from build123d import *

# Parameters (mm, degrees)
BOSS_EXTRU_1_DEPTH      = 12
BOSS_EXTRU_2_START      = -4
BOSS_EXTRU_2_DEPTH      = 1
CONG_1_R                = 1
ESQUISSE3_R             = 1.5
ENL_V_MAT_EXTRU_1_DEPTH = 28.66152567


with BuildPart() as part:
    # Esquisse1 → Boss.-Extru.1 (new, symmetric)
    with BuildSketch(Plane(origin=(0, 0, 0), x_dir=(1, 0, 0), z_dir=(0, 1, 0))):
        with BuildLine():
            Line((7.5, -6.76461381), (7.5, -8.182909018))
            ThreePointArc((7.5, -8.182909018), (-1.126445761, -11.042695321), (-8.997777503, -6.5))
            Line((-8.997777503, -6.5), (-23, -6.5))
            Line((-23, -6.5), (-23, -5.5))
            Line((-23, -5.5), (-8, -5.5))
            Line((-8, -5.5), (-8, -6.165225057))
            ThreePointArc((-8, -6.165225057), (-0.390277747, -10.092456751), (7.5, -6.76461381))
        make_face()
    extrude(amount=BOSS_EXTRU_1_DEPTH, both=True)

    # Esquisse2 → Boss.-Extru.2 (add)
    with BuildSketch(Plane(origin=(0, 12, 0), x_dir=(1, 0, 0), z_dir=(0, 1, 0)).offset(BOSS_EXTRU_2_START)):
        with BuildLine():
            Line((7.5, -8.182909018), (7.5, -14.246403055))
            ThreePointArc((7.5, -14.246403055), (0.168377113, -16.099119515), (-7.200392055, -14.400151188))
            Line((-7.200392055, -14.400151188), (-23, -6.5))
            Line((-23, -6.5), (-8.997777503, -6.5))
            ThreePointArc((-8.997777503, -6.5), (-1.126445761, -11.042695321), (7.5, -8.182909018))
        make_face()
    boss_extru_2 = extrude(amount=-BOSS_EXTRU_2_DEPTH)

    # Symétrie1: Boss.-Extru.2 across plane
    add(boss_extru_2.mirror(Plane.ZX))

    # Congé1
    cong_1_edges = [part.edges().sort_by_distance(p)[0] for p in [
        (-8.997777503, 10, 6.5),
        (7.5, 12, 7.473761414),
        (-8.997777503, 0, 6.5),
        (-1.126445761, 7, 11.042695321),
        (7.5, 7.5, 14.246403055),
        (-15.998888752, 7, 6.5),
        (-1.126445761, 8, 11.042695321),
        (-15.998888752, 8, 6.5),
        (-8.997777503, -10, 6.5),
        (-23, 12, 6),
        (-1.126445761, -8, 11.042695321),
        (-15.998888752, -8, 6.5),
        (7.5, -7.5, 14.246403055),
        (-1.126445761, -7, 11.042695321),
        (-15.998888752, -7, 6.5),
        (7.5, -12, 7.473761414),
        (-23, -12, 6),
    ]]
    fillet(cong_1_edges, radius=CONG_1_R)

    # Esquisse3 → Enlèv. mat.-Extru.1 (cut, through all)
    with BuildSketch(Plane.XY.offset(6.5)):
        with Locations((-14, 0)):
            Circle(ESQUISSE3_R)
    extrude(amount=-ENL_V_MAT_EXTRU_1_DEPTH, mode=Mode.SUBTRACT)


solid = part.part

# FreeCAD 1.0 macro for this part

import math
import FreeCAD as App
import Part
import Sketcher
Q = App.Units.Quantity


def edges_at(feature, points):
    """Names of the edges that pass closest to the given points."""
    edges = feature.Shape.Edges
    near = lambda p: min(range(len(edges)), key=lambda i: edges[i].distToShape(Part.Vertex(*p))[0])
    return sorted({f"Edge{near(p) + 1}" for p in points})

doc = App.newDocument("Part")
params = doc.addObject("Spreadsheet::Sheet", "Params")
for row, (alias, value) in enumerate([
    ("sketch1_radius", "10.1 mm"),
    ("sketch1_radius2", "11.1 mm"),
    ("sketch1_width", "15 mm"),
    ("sketch1_height", "1 mm"),
    ("pad1_length", "24 mm"),
    ("sketch2_radius", "11.1 mm"),
    ("sketch2_radius2", "16.1 mm"),
    ("pad2_length", "1 mm"),
    ("fillet_radius", "1 mm"),
    ("sketch3_diameter", "3 mm"),
], start=1):
    params.set(f"A{row}", alias)
    params.set(f"B{row}", "=" + value)
    params.setAlias(f"B{row}", alias)

body = doc.addObject("PartDesign::Body", "Body")

# Sketch on XZ plane
sketch1 = body.newObject("Sketcher::SketchObject", "Sketch")
sketch1.AttachmentSupport = (doc.getObject("XZ_Plane"), [""])
sketch1.MapMode = "FlatFace"
sketch1.addGeometry(Part.LineSegment(App.Vector(7.5, 8.2, 0), App.Vector(7.5, 6.8, 0)), False)
sketch1.addGeometry(Part.ArcOfCircle(Part.Circle(App.Vector(0, 0, 0), App.Vector(0, 0, 1), 10.1), math.radians(42), math.radians(142)), False)
sketch1.addGeometry(Part.LineSegment(App.Vector(-8, 6.2, 0), App.Vector(-8, 5.5, 0)), False)
sketch1.addGeometry(Part.LineSegment(App.Vector(-8, 5.5, 0), App.Vector(-23, 5.5, 0)), False)
sketch1.addGeometry(Part.LineSegment(App.Vector(-23, 5.5, 0), App.Vector(-23, 6.5, 0)), False)
sketch1.addGeometry(Part.LineSegment(App.Vector(-23, 6.5, 0), App.Vector(-9, 6.5, 0)), False)
sketch1.addGeometry(Part.ArcOfCircle(Part.Circle(App.Vector(0, 0, 0), App.Vector(0, 0, 1), 11.1), math.radians(47), math.radians(144)), False)
sketch1.addConstraint(Sketcher.Constraint("Coincident", 0, 2, 1, 1))
sketch1.addConstraint(Sketcher.Constraint("Coincident", 1, 2, 2, 1))
sketch1.addConstraint(Sketcher.Constraint("Coincident", 2, 2, 3, 1))
sketch1.addConstraint(Sketcher.Constraint("Coincident", 3, 2, 4, 1))
sketch1.addConstraint(Sketcher.Constraint("Coincident", 4, 2, 5, 1))
sketch1.addConstraint(Sketcher.Constraint("Coincident", 5, 2, 6, 2))
sketch1.addConstraint(Sketcher.Constraint("Coincident", 6, 1, 0, 1))
sketch1.addConstraint(Sketcher.Constraint("Vertical", 0))
sketch1.addConstraint(Sketcher.Constraint("Vertical", 2))
sketch1.addConstraint(Sketcher.Constraint("Horizontal", 3))
sketch1.addConstraint(Sketcher.Constraint("Vertical", 4))
sketch1.addConstraint(Sketcher.Constraint("Horizontal", 5))
sketch1.addConstraint(Sketcher.Constraint("Coincident", 1, 3, -1, 1))
sketch1.addConstraint(Sketcher.Constraint("Coincident", 6, 3, -1, 1))
sketch1.addConstraint(Sketcher.Constraint("Radius", 1, Q("10.1 mm")))
sketch1.addConstraint(Sketcher.Constraint("Radius", 6, Q("11.1 mm")))
sketch1.addConstraint(Sketcher.Constraint("DistanceX", 3, 2, 3, 1, Q("15 mm")))
sketch1.addConstraint(Sketcher.Constraint("DistanceY", 4, 1, 4, 2, Q("1 mm")))
sketch1.addConstraint(Sketcher.Constraint("DistanceX", 1, 2, -1, 1, Q("8 mm")))
sketch1.addConstraint(Sketcher.Constraint("DistanceX", -1, 1, 0, 2, Q("7.5 mm")))
sketch1.addConstraint(Sketcher.Constraint("DistanceY", -1, 1, 2, 2, Q("5.5 mm")))
sketch1.setExpression("Constraints[14]", "Params.sketch1_radius")
sketch1.setExpression("Constraints[15]", "Params.sketch1_radius2")
sketch1.setExpression("Constraints[16]", "Params.sketch1_width")
sketch1.setExpression("Constraints[17]", "Params.sketch1_height")
pad1 = body.newObject("PartDesign::Pad", "Pad")
pad1.Profile = sketch1
pad1.setExpression("Length", "Params.pad1_length")
pad1.Midplane = True

# Sketch on XZ plane
sketch2 = body.newObject("Sketcher::SketchObject", "Sketch001")
sketch2.AttachmentSupport = (doc.getObject("XZ_Plane"), [""])
sketch2.MapMode = "FlatFace"
sketch2.AttachmentOffset = App.Placement(App.Vector(0, 0, -8), App.Rotation())
sketch2.addGeometry(Part.LineSegment(App.Vector(8, 14, 0), App.Vector(8, 8, 0)), False)
sketch2.addGeometry(Part.ArcOfCircle(Part.Circle(App.Vector(0, 0, 0), App.Vector(0, 0, 1), 11), math.radians(47), math.radians(144)), False)
sketch2.addGeometry(Part.LineSegment(App.Vector(-9, 6, 0), App.Vector(-23, 6, 0)), False)
sketch2.addGeometry(Part.LineSegment(App.Vector(-23, 6, 0), App.Vector(-7, 14, 0)), False)
sketch2.addGeometry(Part.ArcOfCircle(Part.Circle(App.Vector(0, 0, 0), App.Vector(0, 0, 1), 16), math.radians(62), math.radians(117)), False)
sketch2.addConstraint(Sketcher.Constraint("Coincident", 0, 2, 1, 1))
sketch2.addConstraint(Sketcher.Constraint("Coincident", 1, 2, 2, 1))
sketch2.addConstraint(Sketcher.Constraint("Coincident", 2, 2, 3, 1))
sketch2.addConstraint(Sketcher.Constraint("Tangent", 3, 2, 4, 2))
sketch2.addConstraint(Sketcher.Constraint("Coincident", 4, 1, 0, 1))
sketch2.addConstraint(Sketcher.Constraint("Vertical", 0))
sketch2.addConstraint(Sketcher.Constraint("Horizontal", 2))
sketch2.addConstraint(Sketcher.Constraint("Coincident", 1, 3, -1, 1))
sketch2.addConstraint(Sketcher.Constraint("Coincident", 4, 3, -1, 1))
sketch2.addConstraint(Sketcher.Constraint("Radius", 1, Q("11.1 mm")))
sketch2.addConstraint(Sketcher.Constraint("Radius", 4, Q("16.1 mm")))
sketch2.addConstraint(Sketcher.Constraint("DistanceX", 2, 2, -1, 1, Q("23 mm")))
sketch2.addConstraint(Sketcher.Constraint("DistanceX", -1, 1, 0, 2, Q("7.5 mm")))
sketch2.addConstraint(Sketcher.Constraint("DistanceY", -1, 1, 1, 2, Q("6.5 mm")))
sketch2.setExpression("Constraints[9]", "Params.sketch2_radius")
sketch2.setExpression("Constraints[10]", "Params.sketch2_radius2")
pad2 = body.newObject("PartDesign::Pad", "Pad001")
pad2.Profile = sketch2
pad2.setExpression("Length", "Params.pad2_length")
doc.recompute()

mirrored = body.newObject("PartDesign::Mirrored", "Mirrored")
mirrored.Originals = [pad2]
mirrored.MirrorPlane = (doc.getObject("XZ_Plane"), [""])
body.Tip = mirrored
doc.recompute()

fillet = body.newObject("PartDesign::Fillet", "Fillet")
fillet.Base = (mirrored, edges_at(mirrored, [
    (-8.998, 10, 6.5),
    (7.5, 12, 7.474),
    (-8.998, 0, 6.5),
    (-1.126, 7, 11.043),
    (7.5, 7.5, 14.246),
    (-15.999, 7, 6.5),
    (-1.126, 8, 11.043),
    (-15.999, 8, 6.5),
    (-8.998, -10, 6.5),
    (-23, 12, 6),
    (-1.126, -8, 11.043),
    (-15.999, -8, 6.5),
    (7.5, -7.5, 14.246),
    (-1.126, -7, 11.043),
    (-15.999, -7, 6.5),
    (7.5, -12, 7.474),
    (-23, -12, 6),
]))
fillet.setExpression("Radius", "Params.fillet_radius")

# Sketch on XY plane
sketch3 = body.newObject("Sketcher::SketchObject", "Sketch002")
sketch3.AttachmentSupport = (doc.getObject("XY_Plane"), [""])
sketch3.MapMode = "FlatFace"
sketch3.AttachmentOffset = App.Placement(App.Vector(0, 0, 6.5), App.Rotation())
sketch3.addGeometry(Part.Circle(App.Vector(-14, 0, 0), App.Vector(0, 0, 1), 1.5), False)
sketch3.addConstraint(Sketcher.Constraint("PointOnObject", 0, 3, -1))
sketch3.addConstraint(Sketcher.Constraint("Diameter", 0, Q("3 mm")))
sketch3.addConstraint(Sketcher.Constraint("DistanceX", 0, 3, -1, 1, Q("14 mm")))
sketch3.setExpression("Constraints[1]", "Params.sketch3_diameter")
pocket1 = body.newObject("PartDesign::Pocket", "Pocket")
pocket1.Profile = sketch3
pocket1.Type = "ThroughAll"

doc.recompute()
